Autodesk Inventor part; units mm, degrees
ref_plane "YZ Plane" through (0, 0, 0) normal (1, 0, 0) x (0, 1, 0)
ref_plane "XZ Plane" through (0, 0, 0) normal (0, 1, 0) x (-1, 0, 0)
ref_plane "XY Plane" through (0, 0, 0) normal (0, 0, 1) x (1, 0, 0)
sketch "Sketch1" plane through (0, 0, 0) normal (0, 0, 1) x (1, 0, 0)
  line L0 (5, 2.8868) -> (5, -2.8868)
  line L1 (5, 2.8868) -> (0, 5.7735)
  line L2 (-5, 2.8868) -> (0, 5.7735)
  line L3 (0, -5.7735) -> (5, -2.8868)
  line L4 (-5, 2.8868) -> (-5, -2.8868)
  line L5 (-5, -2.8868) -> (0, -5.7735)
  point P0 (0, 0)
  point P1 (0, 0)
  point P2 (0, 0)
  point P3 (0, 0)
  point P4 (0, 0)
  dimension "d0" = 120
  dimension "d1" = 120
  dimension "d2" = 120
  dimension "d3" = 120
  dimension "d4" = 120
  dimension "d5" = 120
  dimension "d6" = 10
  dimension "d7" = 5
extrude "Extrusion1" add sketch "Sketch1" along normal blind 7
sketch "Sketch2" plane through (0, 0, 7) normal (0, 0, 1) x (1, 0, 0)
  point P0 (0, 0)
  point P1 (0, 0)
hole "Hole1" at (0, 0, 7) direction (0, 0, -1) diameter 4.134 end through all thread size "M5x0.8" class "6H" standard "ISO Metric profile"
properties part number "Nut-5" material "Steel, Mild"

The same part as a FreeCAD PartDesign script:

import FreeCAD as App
import Part
import Sketcher
Q = App.Units.Quantity


def add_polygon(sketch, points):
    """Adds a closed chain of lines whose ends are joined by coincident constraints."""
    first, n = sketch.GeometryCount, len(points)
    for a, b in zip(points, points[1:] + points[:1]):
        sketch.addGeometry(Part.LineSegment(App.Vector(*a, 0), App.Vector(*b, 0)), False)
    for i in range(n):
        sketch.addConstraint(Sketcher.Constraint("Coincident", first + i, 2, first + (i + 1) % n, 1))

doc = App.newDocument("Part")
body = doc.addObject("PartDesign::Body", "Body")

sketch1 = doc.addObject("Sketcher::SketchObject", "Sketch")
body.addObject(sketch1)
sketch1.AttachmentSupport = (doc.XY_Plane, [""])
sketch1.MapMode = "FlatFace"
add_polygon(sketch1, [(5, -3), (5, 3), (0, 6), (-5, 3), (-5, -3), (0, -6)])
sketch1.addConstraint(Sketcher.Constraint("Vertical", 0))
sketch1.addConstraint(Sketcher.Constraint("Vertical", 3))
sketch1.addConstraint(Sketcher.Constraint("Symmetric", 0, 2, 3, 2, -1, 1))
sketch1.addConstraint(Sketcher.Constraint("Symmetric", 1, 2, 4, 2, -1, 1))
sketch1.addConstraint(Sketcher.Constraint("PointOnObject", 1, 2, -2))
sketch1.addConstraint(Sketcher.Constraint("Parallel", 2, 5))
sketch1.addConstraint(Sketcher.Constraint("Horizontal", 0, 2, 2, 2))
sketch1.addConstraint(Sketcher.Constraint("DistanceX", -1, 1, 0, 2, Q("5 mm")))
sketch1.addConstraint(Sketcher.Constraint("Angle", 1, Q("150.0004 deg")))
sketch1.addConstraint(Sketcher.Constraint("DistanceY", 0, 1, 0, 2, Q("5.7736 mm")))
pad1 = doc.addObject("PartDesign::Pad", "Pad")
body.addObject(pad1)
pad1.Profile = sketch1
pad1.Length = 7

sketch2 = doc.addObject("Sketcher::SketchObject", "Sketch001")
body.addObject(sketch2)
sketch2.AttachmentSupport = (doc.XY_Plane, [""])
sketch2.MapMode = "FlatFace"
sketch2.AttachmentOffset = App.Placement(App.Vector(0, 0, 7), App.Rotation())
sketch2.addGeometry(Part.Circle(App.Vector(0, 0, 0), App.Vector(0, 0, 1), 2.1), False)
sketch2.addConstraint(Sketcher.Constraint("Coincident", 0, 3, -1, 1))
sketch2.addConstraint(Sketcher.Constraint("Diameter", 0, Q("4.134 mm")))
doc.recompute()
hole = doc.addObject("PartDesign::Hole", "Hole")
body.addObject(hole)
hole.Profile = sketch2
hole.ThreadType = "None"
hole.Diameter = 4.134
hole.DepthType = "ThroughAll"

doc.recompute()
